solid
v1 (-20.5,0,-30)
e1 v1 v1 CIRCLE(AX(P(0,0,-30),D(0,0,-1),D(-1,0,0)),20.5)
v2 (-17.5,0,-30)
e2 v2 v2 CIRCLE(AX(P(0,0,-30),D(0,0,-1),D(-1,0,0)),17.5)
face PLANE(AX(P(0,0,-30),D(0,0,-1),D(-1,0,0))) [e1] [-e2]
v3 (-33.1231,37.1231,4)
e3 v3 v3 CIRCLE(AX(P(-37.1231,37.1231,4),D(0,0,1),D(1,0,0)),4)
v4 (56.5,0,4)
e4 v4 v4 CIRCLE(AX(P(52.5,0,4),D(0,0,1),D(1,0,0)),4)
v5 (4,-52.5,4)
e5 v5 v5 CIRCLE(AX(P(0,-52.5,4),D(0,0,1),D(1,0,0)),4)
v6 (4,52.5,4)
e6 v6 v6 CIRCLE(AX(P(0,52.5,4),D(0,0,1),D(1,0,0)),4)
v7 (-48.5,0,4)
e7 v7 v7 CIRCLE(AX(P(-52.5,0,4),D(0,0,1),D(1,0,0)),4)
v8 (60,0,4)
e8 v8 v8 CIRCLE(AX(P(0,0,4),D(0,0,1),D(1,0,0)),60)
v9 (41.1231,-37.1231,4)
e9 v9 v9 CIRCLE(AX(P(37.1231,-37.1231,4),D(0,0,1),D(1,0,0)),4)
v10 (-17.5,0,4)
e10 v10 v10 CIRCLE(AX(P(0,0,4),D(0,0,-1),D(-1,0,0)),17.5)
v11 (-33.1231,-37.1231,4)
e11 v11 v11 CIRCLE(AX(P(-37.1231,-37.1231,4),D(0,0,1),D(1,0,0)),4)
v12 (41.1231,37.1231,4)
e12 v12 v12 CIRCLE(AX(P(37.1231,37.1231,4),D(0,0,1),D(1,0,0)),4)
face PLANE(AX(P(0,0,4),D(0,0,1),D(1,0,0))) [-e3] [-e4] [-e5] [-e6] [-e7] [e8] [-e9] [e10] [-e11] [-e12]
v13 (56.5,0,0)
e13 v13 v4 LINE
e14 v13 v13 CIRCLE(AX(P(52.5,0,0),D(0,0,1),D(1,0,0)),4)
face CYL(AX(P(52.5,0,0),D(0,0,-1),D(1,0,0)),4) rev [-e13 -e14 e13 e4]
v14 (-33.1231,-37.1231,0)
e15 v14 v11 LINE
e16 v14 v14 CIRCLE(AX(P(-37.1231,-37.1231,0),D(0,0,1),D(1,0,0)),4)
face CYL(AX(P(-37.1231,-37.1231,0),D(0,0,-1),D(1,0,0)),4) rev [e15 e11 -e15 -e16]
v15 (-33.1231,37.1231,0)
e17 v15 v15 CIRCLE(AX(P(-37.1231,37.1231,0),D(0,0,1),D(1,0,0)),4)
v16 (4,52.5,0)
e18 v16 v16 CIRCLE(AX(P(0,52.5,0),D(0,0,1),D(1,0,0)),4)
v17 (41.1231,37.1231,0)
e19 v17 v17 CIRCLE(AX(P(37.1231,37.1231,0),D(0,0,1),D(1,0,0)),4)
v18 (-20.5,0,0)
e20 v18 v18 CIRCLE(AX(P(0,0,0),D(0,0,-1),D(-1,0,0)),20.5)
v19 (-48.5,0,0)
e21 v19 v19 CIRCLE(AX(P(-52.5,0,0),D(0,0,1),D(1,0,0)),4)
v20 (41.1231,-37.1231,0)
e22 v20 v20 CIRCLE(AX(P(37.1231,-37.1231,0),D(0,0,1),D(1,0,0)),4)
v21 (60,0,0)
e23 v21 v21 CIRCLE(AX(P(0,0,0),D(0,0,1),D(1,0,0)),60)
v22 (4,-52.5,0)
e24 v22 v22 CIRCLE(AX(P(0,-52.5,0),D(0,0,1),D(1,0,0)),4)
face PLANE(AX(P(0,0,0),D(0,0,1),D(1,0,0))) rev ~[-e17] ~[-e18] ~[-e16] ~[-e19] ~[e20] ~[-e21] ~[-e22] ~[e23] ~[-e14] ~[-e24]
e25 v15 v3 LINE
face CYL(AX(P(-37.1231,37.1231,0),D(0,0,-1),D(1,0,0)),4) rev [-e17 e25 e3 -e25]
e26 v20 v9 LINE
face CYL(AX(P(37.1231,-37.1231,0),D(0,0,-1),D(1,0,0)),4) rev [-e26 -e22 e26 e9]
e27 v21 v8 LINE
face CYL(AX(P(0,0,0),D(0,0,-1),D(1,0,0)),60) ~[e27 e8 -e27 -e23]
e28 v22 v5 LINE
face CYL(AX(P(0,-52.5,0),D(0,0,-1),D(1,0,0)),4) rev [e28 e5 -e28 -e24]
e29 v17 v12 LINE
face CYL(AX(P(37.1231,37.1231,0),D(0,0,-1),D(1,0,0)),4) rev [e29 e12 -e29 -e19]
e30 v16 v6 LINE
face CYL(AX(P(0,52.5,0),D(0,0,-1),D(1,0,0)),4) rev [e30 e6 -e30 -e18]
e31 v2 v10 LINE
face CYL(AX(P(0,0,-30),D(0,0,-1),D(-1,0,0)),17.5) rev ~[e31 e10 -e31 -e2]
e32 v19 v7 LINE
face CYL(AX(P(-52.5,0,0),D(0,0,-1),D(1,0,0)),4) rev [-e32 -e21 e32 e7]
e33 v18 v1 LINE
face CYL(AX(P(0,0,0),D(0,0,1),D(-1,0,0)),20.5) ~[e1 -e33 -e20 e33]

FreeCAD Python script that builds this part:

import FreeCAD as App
import Part
import Sketcher

V = App.Vector

doc = App.newDocument("Part")
body = doc.addObject("PartDesign::Body", "Body")

sketch1 = doc.addObject("Sketcher::SketchObject", "Sketch")
body.addObject(sketch1)
sketch1.AttachmentSupport = (doc.XY_Plane, [""])
sketch1.MapMode = "FlatFace"
sketch1.addGeometry([
    Part.Circle(V(0, 0, 0), V(0, 0, 1), 60),
    Part.Circle(V(-37.1, -37.1, 0), V(0, 0, 1), 4),
    Part.Circle(V(0, -52.5, 0), V(0, 0, 1), 4),
    Part.Circle(V(37.1, -37.1, 0), V(0, 0, 1), 4),
    Part.Circle(V(-52.5, 0, 0), V(0, 0, 1), 4),
    Part.Circle(V(-37.1, 37.1, 0), V(0, 0, 1), 4),
    Part.Circle(V(52.5, 0, 0), V(0, 0, 1), 4),
    Part.Circle(V(0, 52.5, 0), V(0, 0, 1), 4),
    Part.Circle(V(37.1, 37.1, 0), V(0, 0, 1), 4),
], False)
sketch1.addConstraint([
    Sketcher.Constraint("Coincident", 0, 3, -1, 1),
    Sketcher.Constraint("Equal", 1, 2),
    Sketcher.Constraint("Equal", 2, 3),
    Sketcher.Constraint("Equal", 3, 4),
    Sketcher.Constraint("Equal", 4, 5),
    Sketcher.Constraint("Equal", 5, 6),
    Sketcher.Constraint("Equal", 6, 7),
    Sketcher.Constraint("Equal", 7, 8),
    Sketcher.Constraint("Symmetric", 3, 3, 5, 3, -1, 1),
    Sketcher.Constraint("Symmetric", 4, 3, 6, 3, -1, 1),
    Sketcher.Constraint("Symmetric", 2, 3, 7, 3, -1, 1),
    Sketcher.Constraint("Symmetric", 1, 3, 8, 3, -1, 1),
    Sketcher.Constraint("Symmetric", 1, 3, 3, 3, -2),
    Sketcher.Constraint("PointOnObject", 2, 3, -2),
    Sketcher.Constraint("PointOnObject", 4, 3, -1),
    Sketcher.Constraint("Diameter", 0, 120.0),
    Sketcher.Constraint("Diameter", 1, 8.0),
    Sketcher.Constraint("DistanceY", 2, 3, -1, 1, 52.5),
    Sketcher.Constraint("DistanceX", 4, 3, -1, 1, 52.5),
    Sketcher.Constraint("DistanceX", 1, 3, -1, 1, 37.123),
    Sketcher.Constraint("DistanceY", 1, 3, -1, 1, 37.123),
])
pad1 = doc.addObject("PartDesign::Pad", "Pad")
body.addObject(pad1)
pad1.Profile = sketch1
pad1.Length = 4

sketch2 = doc.addObject("Sketcher::SketchObject", "Sketch001")
body.addObject(sketch2)
sketch2.AttachmentSupport = (doc.XY_Plane, [""])
sketch2.MapMode = "FlatFace"
sketch2.addGeometry(Part.Circle(V(0, 0, 0), V(0, 0, 1), 20), False)
sketch2.addConstraint([
    Sketcher.Constraint("Coincident", 0, 3, -1, 1),
    Sketcher.Constraint("Diameter", 0, 41.0),
])
pad2 = doc.addObject("PartDesign::Pad", "Pad001")
body.addObject(pad2)
pad2.Profile = sketch2
pad2.Length = 30
pad2.Reversed = True

sketch3 = doc.addObject("Sketcher::SketchObject", "Sketch002")
body.addObject(sketch3)
sketch3.AttachmentSupport = (doc.XY_Plane, [""])
sketch3.MapMode = "FlatFace"
sketch3.AttachmentOffset = App.Placement(V(0, 0, -30), App.Rotation())
sketch3.addGeometry(Part.Circle(V(0, 0, 0), V(0, 0, 1), 18), False)
sketch3.addConstraint([
    Sketcher.Constraint("Coincident", 0, 3, -1, 1),
    Sketcher.Constraint("Diameter", 0, 35.0),
])
pocket1 = doc.addObject("PartDesign::Pocket", "Pocket")
body.addObject(pocket1)
pocket1.Profile = sketch3
pocket1.Length = 35
pocket1.Reversed = True

doc.recompute()
